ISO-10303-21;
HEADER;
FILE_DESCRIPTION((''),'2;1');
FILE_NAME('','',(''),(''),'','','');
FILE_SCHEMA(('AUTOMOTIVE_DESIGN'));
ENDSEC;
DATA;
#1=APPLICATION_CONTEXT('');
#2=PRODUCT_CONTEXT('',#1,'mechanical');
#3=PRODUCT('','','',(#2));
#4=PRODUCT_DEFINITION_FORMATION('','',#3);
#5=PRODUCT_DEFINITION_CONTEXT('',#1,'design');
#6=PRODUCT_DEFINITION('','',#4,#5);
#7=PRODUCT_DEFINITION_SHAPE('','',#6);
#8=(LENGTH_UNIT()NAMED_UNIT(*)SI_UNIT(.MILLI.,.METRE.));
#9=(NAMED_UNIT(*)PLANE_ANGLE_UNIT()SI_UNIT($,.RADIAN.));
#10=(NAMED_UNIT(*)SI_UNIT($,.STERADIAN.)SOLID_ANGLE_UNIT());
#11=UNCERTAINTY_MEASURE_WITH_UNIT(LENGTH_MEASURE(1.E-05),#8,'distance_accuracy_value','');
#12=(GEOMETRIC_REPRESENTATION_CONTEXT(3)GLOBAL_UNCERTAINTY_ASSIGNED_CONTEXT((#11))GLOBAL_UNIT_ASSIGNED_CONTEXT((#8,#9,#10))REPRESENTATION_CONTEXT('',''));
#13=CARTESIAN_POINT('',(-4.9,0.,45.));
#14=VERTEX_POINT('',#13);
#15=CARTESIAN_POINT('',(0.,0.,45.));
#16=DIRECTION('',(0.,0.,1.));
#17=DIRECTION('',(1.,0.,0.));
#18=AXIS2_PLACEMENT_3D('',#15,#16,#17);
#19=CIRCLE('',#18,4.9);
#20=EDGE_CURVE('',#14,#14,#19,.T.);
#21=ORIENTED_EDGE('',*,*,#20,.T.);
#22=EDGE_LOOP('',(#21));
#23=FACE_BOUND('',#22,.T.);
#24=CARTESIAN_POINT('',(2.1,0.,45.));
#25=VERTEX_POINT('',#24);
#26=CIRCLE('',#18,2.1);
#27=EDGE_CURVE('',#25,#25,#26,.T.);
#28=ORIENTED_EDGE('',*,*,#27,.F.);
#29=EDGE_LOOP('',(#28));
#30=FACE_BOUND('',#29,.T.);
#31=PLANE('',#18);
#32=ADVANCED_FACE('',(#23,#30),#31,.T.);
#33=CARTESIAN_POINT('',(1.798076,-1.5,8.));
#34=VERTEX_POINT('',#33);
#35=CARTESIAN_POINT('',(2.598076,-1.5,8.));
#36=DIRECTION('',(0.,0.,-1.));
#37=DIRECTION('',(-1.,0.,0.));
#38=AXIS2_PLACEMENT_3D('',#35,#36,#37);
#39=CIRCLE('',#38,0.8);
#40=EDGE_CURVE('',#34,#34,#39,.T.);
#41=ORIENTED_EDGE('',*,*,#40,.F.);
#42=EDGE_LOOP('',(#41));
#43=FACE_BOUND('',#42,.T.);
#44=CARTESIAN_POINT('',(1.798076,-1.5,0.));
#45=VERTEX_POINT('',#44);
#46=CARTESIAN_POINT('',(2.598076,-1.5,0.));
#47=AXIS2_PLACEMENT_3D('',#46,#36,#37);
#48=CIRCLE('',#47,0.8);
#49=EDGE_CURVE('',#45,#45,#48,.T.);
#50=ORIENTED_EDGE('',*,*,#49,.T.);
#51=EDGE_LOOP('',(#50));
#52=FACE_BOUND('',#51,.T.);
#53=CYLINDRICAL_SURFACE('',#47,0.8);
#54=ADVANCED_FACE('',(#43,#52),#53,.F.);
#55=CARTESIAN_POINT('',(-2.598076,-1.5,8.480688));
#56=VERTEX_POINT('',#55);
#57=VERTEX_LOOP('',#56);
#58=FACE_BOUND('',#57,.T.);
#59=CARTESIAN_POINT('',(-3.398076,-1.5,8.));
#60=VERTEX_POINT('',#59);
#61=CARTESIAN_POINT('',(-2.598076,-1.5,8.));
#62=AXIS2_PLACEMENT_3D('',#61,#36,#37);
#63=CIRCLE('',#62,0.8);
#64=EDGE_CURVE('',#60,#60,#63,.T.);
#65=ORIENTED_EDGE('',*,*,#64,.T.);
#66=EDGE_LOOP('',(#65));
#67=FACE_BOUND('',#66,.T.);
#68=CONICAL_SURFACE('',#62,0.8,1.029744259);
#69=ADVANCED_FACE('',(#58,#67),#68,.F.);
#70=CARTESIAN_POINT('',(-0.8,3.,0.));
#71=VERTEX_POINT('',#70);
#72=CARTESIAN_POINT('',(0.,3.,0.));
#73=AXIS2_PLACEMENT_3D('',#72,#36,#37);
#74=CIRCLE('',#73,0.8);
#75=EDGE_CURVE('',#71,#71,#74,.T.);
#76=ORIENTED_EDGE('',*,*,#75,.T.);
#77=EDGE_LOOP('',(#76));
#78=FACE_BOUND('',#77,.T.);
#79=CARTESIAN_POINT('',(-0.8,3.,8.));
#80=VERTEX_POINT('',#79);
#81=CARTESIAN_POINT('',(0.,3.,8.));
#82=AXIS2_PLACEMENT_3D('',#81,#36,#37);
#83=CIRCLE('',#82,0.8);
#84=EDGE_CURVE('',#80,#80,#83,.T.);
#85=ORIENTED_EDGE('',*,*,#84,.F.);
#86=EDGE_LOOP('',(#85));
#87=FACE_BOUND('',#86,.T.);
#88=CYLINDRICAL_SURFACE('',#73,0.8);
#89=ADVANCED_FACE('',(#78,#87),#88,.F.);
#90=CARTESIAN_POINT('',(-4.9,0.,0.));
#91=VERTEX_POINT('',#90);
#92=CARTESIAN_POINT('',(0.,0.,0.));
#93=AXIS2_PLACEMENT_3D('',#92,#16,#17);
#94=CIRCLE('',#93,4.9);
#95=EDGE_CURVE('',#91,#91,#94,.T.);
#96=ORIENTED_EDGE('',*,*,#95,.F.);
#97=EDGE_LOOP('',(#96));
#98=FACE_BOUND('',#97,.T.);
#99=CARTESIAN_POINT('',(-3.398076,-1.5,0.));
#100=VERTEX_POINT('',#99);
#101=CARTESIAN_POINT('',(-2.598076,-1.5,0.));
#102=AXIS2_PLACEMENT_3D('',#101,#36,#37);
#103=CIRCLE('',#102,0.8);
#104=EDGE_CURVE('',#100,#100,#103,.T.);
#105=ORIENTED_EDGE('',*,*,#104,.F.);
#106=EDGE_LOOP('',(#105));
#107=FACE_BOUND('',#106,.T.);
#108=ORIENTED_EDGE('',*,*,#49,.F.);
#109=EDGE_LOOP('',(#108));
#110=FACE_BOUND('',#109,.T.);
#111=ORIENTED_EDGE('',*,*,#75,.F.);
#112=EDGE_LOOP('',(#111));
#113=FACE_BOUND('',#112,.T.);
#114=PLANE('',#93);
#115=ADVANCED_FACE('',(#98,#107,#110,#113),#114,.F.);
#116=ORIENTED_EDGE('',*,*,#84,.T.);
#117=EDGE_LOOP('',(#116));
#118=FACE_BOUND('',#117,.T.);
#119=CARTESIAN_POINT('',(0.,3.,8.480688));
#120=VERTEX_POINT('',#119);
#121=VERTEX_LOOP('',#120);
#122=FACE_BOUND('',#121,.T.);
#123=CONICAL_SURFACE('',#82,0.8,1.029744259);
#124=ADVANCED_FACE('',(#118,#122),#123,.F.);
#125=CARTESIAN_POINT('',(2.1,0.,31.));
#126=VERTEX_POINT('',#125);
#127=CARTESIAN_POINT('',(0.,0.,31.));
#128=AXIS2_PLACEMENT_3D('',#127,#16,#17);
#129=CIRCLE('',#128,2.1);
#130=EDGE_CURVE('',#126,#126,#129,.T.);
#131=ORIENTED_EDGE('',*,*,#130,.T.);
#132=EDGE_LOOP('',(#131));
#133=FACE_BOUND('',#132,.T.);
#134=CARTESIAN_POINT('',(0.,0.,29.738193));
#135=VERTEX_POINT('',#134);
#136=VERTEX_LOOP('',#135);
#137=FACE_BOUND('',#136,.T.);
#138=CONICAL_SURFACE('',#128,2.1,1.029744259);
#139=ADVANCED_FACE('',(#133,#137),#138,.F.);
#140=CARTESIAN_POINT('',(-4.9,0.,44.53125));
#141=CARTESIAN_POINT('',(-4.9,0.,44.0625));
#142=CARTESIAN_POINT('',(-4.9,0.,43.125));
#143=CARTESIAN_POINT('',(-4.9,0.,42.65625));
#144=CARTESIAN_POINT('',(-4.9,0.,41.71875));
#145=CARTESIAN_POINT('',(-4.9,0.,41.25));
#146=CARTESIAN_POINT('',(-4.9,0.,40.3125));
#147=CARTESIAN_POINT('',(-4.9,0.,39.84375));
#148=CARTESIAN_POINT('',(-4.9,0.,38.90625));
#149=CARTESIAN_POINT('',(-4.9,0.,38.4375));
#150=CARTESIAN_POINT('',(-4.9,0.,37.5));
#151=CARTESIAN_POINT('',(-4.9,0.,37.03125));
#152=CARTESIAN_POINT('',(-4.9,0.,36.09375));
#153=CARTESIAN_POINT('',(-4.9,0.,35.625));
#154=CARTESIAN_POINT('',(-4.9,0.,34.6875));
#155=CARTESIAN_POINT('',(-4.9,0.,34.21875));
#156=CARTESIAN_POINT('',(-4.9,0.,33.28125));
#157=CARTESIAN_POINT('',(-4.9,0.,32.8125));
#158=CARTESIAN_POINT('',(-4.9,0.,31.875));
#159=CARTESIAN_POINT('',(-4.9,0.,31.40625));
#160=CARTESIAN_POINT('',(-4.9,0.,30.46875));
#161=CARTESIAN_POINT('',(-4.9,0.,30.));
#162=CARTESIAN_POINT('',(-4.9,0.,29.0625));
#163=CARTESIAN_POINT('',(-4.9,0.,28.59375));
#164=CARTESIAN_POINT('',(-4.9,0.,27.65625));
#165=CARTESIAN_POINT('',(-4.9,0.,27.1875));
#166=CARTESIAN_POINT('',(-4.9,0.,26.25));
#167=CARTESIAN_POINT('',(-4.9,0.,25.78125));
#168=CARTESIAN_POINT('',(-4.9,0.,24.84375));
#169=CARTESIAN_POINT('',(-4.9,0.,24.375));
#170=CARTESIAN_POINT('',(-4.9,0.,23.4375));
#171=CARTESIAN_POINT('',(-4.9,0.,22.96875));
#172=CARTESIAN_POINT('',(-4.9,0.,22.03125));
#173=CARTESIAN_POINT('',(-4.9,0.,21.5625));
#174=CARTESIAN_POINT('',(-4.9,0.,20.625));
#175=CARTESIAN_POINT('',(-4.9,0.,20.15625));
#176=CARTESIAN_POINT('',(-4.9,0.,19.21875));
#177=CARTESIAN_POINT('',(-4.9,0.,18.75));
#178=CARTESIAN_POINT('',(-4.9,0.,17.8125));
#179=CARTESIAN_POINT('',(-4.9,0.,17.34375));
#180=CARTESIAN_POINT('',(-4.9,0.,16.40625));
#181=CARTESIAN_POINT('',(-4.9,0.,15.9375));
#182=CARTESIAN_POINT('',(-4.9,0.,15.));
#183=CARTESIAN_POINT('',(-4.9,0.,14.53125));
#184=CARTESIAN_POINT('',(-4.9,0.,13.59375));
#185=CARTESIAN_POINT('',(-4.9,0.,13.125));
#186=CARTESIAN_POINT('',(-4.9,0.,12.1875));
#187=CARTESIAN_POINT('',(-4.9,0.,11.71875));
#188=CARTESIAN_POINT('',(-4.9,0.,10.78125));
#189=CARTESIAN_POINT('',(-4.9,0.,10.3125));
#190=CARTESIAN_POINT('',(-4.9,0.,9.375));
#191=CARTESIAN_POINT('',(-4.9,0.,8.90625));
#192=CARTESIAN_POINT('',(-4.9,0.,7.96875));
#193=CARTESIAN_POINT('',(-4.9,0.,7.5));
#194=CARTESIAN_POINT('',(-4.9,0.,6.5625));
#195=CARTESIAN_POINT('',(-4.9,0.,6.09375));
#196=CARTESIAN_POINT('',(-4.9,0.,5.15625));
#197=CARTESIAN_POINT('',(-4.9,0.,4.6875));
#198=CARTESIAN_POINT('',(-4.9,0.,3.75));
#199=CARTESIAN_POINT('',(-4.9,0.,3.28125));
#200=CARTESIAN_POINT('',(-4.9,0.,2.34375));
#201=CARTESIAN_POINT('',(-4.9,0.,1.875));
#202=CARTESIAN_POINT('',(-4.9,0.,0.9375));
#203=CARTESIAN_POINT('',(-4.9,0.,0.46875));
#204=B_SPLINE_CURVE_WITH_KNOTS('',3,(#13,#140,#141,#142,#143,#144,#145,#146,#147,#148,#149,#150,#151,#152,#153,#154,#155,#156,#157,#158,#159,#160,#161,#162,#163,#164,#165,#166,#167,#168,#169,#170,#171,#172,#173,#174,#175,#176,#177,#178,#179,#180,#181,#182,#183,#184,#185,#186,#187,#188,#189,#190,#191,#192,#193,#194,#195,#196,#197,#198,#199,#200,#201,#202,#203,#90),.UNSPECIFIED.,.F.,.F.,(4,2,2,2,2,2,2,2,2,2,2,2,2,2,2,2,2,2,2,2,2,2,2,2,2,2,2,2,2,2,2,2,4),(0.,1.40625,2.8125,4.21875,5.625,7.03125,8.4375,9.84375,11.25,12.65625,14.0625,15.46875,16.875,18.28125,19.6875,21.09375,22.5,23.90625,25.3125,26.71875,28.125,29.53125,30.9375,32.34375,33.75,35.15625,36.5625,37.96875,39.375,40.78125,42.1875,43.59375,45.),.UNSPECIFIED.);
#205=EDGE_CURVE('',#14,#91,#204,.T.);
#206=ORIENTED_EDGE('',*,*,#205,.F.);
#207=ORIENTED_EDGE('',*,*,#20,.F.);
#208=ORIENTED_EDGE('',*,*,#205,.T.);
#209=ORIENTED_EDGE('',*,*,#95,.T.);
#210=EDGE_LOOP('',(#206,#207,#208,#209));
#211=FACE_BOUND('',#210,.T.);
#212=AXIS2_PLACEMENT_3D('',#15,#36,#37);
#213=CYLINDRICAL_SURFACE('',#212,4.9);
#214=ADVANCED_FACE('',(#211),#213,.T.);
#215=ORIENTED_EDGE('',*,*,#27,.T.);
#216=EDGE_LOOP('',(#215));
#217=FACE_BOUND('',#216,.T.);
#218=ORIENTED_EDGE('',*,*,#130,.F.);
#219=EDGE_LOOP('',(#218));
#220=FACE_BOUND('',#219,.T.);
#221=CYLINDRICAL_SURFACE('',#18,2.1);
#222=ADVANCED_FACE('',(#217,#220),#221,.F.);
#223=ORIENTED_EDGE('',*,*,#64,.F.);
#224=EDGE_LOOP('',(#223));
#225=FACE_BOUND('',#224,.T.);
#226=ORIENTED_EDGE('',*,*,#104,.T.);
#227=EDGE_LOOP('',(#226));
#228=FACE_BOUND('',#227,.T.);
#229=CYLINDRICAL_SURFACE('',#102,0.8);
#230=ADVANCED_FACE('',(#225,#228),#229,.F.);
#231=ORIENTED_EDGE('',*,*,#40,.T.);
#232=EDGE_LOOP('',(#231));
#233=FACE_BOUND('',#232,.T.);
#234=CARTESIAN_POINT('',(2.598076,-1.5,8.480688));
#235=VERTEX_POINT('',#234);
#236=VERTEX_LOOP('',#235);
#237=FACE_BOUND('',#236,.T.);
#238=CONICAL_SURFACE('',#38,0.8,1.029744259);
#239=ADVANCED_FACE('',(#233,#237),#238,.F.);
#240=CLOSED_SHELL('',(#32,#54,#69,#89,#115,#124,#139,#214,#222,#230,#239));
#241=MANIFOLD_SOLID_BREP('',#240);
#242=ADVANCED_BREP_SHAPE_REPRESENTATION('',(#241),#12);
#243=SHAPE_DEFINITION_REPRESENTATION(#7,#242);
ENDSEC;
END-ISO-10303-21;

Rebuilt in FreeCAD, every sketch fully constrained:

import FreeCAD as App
import Part
import Sketcher

V = App.Vector
Q = App.Units.Quantity

doc = App.newDocument("Part")
body = doc.addObject("PartDesign::Body", "Body")

# Sketch on XY plane
sketch1 = doc.addObject("Sketcher::SketchObject", "Sketch")
body.addObject(sketch1)
sketch1.AttachmentSupport = (doc.XY_Plane, [""])
sketch1.MapMode = "FlatFace"
sketch1.addGeometry(Part.Circle(V(0, 0, 0), V(0, 0, 1), 4.9), False)
sketch1.addConstraint([
    Sketcher.Constraint("Coincident", 0, 3, -1, 1),
    Sketcher.Constraint("Diameter", 0, 9.8),
])
pad1 = doc.addObject("PartDesign::Pad", "Pad")
body.addObject(pad1)
pad1.Profile = sketch1
pad1.Length = 45

# Sketch on YZ plane
sketch2 = doc.addObject("Sketcher::SketchObject", "Sketch001")
body.addObject(sketch2)
sketch2.AttachmentSupport = (doc.YZ_Plane, [""])
sketch2.MapMode = "FlatFace"
sketch2.addGeometry([
    Part.LineSegment(V(0, 29.738193, 0), V(0, 45, 0)),
    Part.LineSegment(V(0, 45, 0), V(-2.1, 45, 0)),
    Part.LineSegment(V(-2.1, 45, 0), V(-2.1, 31, 0)),
    Part.LineSegment(V(-2.1, 31, 0), V(0, 29.738193, 0)),
], False)
sketch2.addConstraint([
    Sketcher.Constraint("Coincident", 0, 2, 1, 1),
    Sketcher.Constraint("Coincident", 1, 2, 2, 1),
    Sketcher.Constraint("Coincident", 2, 2, 3, 1),
    Sketcher.Constraint("Coincident", 3, 2, 0, 1),
    Sketcher.Constraint("Vertical", 0),
    Sketcher.Constraint("Horizontal", 1),
    Sketcher.Constraint("Vertical", 2),
    Sketcher.Constraint("PointOnObject", 0, 2, -2),
    Sketcher.Constraint("DistanceY", 2, 2, 2, 1, 14.0),
    Sketcher.Constraint("Angle", 3, Q("-31 deg")),
    Sketcher.Constraint("DistanceX", 1, 2, 1, 1, 2.1),
    Sketcher.Constraint("DistanceY", -1, 1, 0, 2, 45.0),
])
groove = doc.addObject("PartDesign::Groove", "Groove")
body.addObject(groove)
groove.Profile = sketch2
groove.ReferenceAxis = (sketch2, ["V_Axis"])
groove.Angle = 360

# Sketch on YZ plane
sketch3 = doc.addObject("Sketcher::SketchObject", "Sketch002")
body.addObject(sketch3)
sketch3.AttachmentSupport = (doc.YZ_Plane, [""])
sketch3.MapMode = "FlatFace"
sketch3.addGeometry([
    Part.LineSegment(V(3, 8.480688, 0), V(3, 0, 0)),
    Part.LineSegment(V(3, 0, 0), V(3.8, 0, 0)),
    Part.LineSegment(V(3.8, 0, 0), V(3.8, 8, 0)),
    Part.LineSegment(V(3.8, 8, 0), V(3, 8.480688, 0)),
], False)
sketch3.addGeometry(Part.LineSegment(V(3, 0, 0), V(3, 8.480688, 0)), True)  # axis
sketch3.addConstraint([
    Sketcher.Constraint("Coincident", 0, 2, 1, 1),
    Sketcher.Constraint("Coincident", 1, 2, 2, 1),
    Sketcher.Constraint("Coincident", 2, 2, 3, 1),
    Sketcher.Constraint("Coincident", 3, 2, 0, 1),
    Sketcher.Constraint("Vertical", 0),
    Sketcher.Constraint("Horizontal", 1),
    Sketcher.Constraint("Vertical", 2),
    Sketcher.Constraint("Vertical", 4),
    Sketcher.Constraint("Coincident", 4, 1, 0, 2),
    Sketcher.Constraint("PointOnObject", 0, 2, -1),
    Sketcher.Constraint("Equal", 0, 4),
    Sketcher.Constraint("DistanceY", 2, 1, 2, 2, 8.0),
    Sketcher.Constraint("Angle", 3, Q("149 deg")),
    Sketcher.Constraint("DistanceX", 1, 1, 1, 2, 0.8),
    Sketcher.Constraint("DistanceX", -1, 1, 0, 2, 3.0),
])
groove2 = doc.addObject("PartDesign::Groove", "Groove001")
body.addObject(groove2)
groove2.Profile = sketch3
groove2.ReferenceAxis = (sketch3, ["Axis0"])
groove2.Angle = 360
doc.recompute()

polarpattern = doc.addObject("PartDesign::PolarPattern", "PolarPattern")
body.addObject(polarpattern)
polarpattern.Originals = [groove2]
polarpattern.Axis = (doc.Z_Axis, [""])
polarpattern.Angle = 360
polarpattern.Occurrences = 3
body.Tip = polarpattern

doc.recompute()
